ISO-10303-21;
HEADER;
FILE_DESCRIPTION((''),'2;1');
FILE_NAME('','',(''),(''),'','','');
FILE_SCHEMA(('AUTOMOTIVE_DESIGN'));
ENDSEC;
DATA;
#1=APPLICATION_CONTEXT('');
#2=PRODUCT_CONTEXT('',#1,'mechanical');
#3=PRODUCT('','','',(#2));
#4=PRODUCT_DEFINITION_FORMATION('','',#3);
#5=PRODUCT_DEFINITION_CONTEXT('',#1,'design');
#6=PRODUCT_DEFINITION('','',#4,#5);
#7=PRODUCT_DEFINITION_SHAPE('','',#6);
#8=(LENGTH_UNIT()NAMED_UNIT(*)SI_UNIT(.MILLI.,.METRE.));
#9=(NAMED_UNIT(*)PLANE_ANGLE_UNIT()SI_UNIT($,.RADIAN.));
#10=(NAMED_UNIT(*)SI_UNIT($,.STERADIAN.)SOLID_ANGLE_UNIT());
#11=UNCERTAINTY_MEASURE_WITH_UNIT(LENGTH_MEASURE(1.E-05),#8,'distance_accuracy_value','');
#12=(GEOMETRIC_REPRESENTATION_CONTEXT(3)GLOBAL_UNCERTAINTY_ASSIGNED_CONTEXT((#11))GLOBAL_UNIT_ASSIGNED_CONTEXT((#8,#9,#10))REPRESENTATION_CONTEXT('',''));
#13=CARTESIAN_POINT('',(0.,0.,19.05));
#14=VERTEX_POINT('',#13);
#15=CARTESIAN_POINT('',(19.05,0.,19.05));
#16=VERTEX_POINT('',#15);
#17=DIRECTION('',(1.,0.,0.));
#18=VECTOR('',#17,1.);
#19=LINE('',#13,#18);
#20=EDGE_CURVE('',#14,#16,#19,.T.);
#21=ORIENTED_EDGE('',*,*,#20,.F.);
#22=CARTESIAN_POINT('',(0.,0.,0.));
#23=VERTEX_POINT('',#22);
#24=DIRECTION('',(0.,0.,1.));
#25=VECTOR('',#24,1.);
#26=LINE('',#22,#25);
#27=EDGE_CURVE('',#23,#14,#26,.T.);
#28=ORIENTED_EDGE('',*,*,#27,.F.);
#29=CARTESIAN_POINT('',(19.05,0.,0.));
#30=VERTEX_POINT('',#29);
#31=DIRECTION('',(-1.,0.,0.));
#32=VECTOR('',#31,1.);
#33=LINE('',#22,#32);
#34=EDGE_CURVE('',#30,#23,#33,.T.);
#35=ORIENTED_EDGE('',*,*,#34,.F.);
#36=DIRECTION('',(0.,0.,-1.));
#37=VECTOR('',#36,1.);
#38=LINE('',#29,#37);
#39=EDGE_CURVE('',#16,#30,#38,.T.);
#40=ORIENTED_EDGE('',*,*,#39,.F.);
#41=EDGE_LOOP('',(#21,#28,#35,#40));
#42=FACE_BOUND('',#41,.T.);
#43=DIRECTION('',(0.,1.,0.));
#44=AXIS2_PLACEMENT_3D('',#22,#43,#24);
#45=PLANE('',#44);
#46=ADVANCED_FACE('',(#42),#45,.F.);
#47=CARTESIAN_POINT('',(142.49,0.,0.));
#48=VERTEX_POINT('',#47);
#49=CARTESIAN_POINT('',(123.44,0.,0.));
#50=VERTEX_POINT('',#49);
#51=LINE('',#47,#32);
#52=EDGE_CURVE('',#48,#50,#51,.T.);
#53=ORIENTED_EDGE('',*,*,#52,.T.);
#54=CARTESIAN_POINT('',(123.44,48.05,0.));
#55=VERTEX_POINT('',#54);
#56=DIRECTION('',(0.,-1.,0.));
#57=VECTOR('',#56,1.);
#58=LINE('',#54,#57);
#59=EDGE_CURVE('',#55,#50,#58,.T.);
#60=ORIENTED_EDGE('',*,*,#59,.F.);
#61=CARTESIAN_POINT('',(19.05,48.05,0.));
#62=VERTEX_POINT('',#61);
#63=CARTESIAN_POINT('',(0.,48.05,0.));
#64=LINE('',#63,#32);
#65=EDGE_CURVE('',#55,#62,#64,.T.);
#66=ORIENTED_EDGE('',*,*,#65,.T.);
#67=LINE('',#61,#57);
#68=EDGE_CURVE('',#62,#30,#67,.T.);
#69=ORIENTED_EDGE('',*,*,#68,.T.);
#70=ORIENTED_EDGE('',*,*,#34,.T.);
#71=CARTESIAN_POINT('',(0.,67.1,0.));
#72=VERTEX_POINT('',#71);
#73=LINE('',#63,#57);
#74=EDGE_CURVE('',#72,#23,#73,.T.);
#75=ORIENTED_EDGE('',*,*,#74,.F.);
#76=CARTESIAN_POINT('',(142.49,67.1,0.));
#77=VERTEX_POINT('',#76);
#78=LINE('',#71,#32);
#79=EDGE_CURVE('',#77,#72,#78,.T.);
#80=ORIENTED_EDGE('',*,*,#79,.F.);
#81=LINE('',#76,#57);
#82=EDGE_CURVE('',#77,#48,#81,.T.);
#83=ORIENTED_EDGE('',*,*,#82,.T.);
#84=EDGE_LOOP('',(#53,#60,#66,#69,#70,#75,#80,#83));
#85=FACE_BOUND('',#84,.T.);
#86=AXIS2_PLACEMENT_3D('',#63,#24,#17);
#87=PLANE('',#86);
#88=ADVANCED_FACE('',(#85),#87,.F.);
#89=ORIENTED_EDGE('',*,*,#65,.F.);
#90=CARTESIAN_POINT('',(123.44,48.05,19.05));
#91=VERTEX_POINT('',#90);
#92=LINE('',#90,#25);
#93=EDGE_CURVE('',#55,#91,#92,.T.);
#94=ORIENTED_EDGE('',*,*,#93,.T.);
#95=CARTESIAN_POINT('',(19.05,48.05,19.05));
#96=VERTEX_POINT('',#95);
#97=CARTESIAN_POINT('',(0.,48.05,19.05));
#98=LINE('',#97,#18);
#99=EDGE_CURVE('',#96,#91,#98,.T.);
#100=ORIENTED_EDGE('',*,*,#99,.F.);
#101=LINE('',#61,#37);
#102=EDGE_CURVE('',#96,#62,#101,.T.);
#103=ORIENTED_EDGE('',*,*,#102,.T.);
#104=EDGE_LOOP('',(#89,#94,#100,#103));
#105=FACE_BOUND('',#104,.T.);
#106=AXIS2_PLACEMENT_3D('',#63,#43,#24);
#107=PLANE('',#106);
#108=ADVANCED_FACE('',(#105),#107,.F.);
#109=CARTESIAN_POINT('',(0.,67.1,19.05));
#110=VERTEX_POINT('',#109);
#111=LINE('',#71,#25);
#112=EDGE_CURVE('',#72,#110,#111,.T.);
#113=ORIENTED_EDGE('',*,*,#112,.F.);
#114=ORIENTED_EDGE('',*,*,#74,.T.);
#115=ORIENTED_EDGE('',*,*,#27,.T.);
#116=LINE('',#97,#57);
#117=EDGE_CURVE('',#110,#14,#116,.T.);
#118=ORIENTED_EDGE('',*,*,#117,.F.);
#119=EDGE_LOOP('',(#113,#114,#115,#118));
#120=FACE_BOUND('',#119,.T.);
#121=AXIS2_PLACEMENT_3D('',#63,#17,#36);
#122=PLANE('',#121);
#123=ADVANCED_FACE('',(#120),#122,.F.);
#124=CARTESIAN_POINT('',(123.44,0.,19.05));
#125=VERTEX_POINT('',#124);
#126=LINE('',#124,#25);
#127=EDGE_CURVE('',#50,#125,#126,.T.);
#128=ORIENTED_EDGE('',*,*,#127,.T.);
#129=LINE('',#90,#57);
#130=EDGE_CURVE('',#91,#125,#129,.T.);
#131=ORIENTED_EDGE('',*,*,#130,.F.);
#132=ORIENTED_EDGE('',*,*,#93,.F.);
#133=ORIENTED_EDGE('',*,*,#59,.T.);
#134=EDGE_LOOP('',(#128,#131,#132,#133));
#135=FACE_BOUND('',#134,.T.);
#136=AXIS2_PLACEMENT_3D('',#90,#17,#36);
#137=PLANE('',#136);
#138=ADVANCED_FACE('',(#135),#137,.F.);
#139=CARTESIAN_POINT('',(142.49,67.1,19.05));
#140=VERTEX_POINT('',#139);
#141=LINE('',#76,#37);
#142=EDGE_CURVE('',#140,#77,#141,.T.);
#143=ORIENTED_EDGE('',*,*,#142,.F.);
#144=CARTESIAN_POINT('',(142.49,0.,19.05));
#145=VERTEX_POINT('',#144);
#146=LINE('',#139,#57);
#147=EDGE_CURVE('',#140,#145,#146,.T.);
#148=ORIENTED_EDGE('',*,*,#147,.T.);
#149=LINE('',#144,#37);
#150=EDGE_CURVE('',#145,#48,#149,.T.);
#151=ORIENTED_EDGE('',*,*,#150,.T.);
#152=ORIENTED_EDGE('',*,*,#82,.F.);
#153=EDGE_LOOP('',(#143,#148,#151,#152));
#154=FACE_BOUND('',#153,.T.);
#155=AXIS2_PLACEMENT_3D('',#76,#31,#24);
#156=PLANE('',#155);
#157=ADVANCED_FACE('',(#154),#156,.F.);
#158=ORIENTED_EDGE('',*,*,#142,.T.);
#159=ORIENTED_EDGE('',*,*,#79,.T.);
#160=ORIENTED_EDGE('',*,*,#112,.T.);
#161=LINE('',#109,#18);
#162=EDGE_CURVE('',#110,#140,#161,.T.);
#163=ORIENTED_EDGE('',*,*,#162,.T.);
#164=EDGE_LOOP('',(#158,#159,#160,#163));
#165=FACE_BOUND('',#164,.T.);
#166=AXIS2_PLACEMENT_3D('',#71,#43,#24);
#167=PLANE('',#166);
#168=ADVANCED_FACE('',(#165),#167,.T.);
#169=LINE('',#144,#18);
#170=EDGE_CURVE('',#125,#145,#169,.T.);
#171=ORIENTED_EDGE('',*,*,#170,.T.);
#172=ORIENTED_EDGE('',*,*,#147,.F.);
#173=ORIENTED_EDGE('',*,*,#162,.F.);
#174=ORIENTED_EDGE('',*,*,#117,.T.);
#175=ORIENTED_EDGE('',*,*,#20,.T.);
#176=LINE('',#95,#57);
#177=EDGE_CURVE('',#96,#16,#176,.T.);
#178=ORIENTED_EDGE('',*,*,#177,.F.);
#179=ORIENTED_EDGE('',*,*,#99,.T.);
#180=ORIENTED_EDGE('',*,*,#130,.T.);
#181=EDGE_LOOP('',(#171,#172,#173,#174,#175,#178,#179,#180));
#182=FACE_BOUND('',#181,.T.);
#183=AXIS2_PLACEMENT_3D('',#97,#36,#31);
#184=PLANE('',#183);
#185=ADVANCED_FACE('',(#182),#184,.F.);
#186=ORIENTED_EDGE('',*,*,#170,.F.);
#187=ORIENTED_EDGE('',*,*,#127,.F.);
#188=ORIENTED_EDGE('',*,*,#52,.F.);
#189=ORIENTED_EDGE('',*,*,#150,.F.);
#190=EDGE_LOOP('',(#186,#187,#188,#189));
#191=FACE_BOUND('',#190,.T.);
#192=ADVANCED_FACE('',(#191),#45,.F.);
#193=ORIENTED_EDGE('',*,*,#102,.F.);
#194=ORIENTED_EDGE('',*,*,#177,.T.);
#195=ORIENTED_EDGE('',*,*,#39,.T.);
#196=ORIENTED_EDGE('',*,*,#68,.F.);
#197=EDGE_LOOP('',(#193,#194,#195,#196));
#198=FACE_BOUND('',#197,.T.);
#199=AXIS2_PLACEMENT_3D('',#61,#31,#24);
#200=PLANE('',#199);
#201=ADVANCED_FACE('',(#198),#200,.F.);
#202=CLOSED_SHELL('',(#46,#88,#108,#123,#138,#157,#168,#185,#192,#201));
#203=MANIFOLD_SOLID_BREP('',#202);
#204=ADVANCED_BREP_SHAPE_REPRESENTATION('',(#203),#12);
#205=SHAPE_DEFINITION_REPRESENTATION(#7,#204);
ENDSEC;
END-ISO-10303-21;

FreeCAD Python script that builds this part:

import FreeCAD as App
import Part
import Sketcher

V = App.Vector
Q = App.Units.Quantity


def add_polygon(sketch, points):
    """Adds a closed chain of lines whose ends are joined by coincident constraints."""
    first, n = sketch.GeometryCount, len(points)
    for a, b in zip(points, points[1:] + points[:1]):
        sketch.addGeometry(Part.LineSegment(App.Vector(*a, 0), App.Vector(*b, 0)), False)
    for i in range(n):
        sketch.addConstraint(Sketcher.Constraint("Coincident", first + i, 2, first + (i + 1) % n, 1))

doc = App.newDocument("Part")
params = doc.addObject("Spreadsheet::Sheet", "Params")
for row, (alias, value) in enumerate([
    ("sketch1_width", "0.75 in"),
    ("pad1_length", "48.05 mm"),
    ("sketch2_width", "0.75 in"),
    ("pad2_length", "48.05 mm"),
    ("sketch3_height", "0.75 in"),
    ("pad3_length", "0.75 in"),
], start=1):
    params.set(f"A{row}", alias)
    params.set(f"B{row}", "=" + value)
    params.setAlias(f"B{row}", alias)

body = doc.addObject("PartDesign::Body", "Body")

sketch1 = body.newObject("Sketcher::SketchObject", "Sketch")
sketch1.AttachmentSupport = (doc.getObject("XZ_Plane"), [""])
sketch1.MapMode = "FlatFace"
add_polygon(sketch1, [(0, 0), (0, 19), (19, 19), (19, 0)])
sketch1.addConstraint([
    Sketcher.Constraint("Vertical", 0),
    Sketcher.Constraint("Horizontal", 1),
    Sketcher.Constraint("Vertical", 2),
    Sketcher.Constraint("Horizontal", 3),
    Sketcher.Constraint("Coincident", 3, 2, -1, 1),
    Sketcher.Constraint("Equal", 3, 0),
    Sketcher.Constraint("DistanceX", 1, 1, 1, 2, Q("0.75 in")),
])
sketch1.setExpression("Constraints[10]", "Params.sketch1_width")
pad1 = body.newObject("PartDesign::Pad", "Pad")
pad1.Profile = sketch1
pad1.setExpression("Length", "Params.pad1_length")
pad1.Reversed = True
body2 = doc.addObject("PartDesign::Body", "Body001")

sketch2 = body2.newObject("Sketcher::SketchObject", "Sketch001")
sketch2.AttachmentSupport = (doc.getObject("XZ_Plane001"), [""])
sketch2.MapMode = "FlatFace"
add_polygon(sketch2, [(123, 0), (123, 19), (142, 19), (142, 0)])
sketch2.addConstraint([
    Sketcher.Constraint("Vertical", 0),
    Sketcher.Constraint("Horizontal", 1),
    Sketcher.Constraint("Vertical", 2),
    Sketcher.Constraint("Horizontal", 3),
    Sketcher.Constraint("PointOnObject", 2, 2, -1),
    Sketcher.Constraint("Equal", 3, 0),
    Sketcher.Constraint("DistanceX", 1, 1, 1, 2, Q("0.75 in")),
    Sketcher.Constraint("DistanceX", -1, 1, 0, 2, 123.44),
])
sketch2.setExpression("Constraints[10]", "Params.sketch2_width")
pad2 = body2.newObject("PartDesign::Pad", "Pad001")
pad2.Profile = sketch2
pad2.setExpression("Length", "Params.pad2_length")
pad2.Reversed = True
body.AllowCompound = True
doc.recompute()

boolean = body.newObject("PartDesign::Boolean", "Boolean")
boolean.Type = "Fuse"
boolean.addObjects([body2])

sketch3 = body.newObject("Sketcher::SketchObject", "Sketch002")
sketch3.AttachmentSupport = (doc.getObject("XZ_Plane"), [""])
sketch3.MapMode = "FlatFace"
sketch3.AttachmentOffset = App.Placement(V(0, 0, -48.05), App.Rotation())
add_polygon(sketch3, [(0, 0), (0, 19), (142, 19), (142, 0)])
sketch3.addConstraint([
    Sketcher.Constraint("Vertical", 0),
    Sketcher.Constraint("Horizontal", 1),
    Sketcher.Constraint("Vertical", 2),
    Sketcher.Constraint("Horizontal", 3),
    Sketcher.Constraint("Coincident", 3, 2, -1, 1),
    Sketcher.Constraint("DistanceY", 0, 1, 0, 2, Q("0.75 in")),
    Sketcher.Constraint("DistanceX", 1, 1, 1, 2, 142.49),
])
sketch3.setExpression("Constraints[9]", "Params.sketch3_height")
pad3 = body.newObject("PartDesign::Pad", "Pad002")
pad3.Profile = sketch3
pad3.setExpression("Length", "Params.pad3_length")
pad3.Reversed = True

doc.recompute()
